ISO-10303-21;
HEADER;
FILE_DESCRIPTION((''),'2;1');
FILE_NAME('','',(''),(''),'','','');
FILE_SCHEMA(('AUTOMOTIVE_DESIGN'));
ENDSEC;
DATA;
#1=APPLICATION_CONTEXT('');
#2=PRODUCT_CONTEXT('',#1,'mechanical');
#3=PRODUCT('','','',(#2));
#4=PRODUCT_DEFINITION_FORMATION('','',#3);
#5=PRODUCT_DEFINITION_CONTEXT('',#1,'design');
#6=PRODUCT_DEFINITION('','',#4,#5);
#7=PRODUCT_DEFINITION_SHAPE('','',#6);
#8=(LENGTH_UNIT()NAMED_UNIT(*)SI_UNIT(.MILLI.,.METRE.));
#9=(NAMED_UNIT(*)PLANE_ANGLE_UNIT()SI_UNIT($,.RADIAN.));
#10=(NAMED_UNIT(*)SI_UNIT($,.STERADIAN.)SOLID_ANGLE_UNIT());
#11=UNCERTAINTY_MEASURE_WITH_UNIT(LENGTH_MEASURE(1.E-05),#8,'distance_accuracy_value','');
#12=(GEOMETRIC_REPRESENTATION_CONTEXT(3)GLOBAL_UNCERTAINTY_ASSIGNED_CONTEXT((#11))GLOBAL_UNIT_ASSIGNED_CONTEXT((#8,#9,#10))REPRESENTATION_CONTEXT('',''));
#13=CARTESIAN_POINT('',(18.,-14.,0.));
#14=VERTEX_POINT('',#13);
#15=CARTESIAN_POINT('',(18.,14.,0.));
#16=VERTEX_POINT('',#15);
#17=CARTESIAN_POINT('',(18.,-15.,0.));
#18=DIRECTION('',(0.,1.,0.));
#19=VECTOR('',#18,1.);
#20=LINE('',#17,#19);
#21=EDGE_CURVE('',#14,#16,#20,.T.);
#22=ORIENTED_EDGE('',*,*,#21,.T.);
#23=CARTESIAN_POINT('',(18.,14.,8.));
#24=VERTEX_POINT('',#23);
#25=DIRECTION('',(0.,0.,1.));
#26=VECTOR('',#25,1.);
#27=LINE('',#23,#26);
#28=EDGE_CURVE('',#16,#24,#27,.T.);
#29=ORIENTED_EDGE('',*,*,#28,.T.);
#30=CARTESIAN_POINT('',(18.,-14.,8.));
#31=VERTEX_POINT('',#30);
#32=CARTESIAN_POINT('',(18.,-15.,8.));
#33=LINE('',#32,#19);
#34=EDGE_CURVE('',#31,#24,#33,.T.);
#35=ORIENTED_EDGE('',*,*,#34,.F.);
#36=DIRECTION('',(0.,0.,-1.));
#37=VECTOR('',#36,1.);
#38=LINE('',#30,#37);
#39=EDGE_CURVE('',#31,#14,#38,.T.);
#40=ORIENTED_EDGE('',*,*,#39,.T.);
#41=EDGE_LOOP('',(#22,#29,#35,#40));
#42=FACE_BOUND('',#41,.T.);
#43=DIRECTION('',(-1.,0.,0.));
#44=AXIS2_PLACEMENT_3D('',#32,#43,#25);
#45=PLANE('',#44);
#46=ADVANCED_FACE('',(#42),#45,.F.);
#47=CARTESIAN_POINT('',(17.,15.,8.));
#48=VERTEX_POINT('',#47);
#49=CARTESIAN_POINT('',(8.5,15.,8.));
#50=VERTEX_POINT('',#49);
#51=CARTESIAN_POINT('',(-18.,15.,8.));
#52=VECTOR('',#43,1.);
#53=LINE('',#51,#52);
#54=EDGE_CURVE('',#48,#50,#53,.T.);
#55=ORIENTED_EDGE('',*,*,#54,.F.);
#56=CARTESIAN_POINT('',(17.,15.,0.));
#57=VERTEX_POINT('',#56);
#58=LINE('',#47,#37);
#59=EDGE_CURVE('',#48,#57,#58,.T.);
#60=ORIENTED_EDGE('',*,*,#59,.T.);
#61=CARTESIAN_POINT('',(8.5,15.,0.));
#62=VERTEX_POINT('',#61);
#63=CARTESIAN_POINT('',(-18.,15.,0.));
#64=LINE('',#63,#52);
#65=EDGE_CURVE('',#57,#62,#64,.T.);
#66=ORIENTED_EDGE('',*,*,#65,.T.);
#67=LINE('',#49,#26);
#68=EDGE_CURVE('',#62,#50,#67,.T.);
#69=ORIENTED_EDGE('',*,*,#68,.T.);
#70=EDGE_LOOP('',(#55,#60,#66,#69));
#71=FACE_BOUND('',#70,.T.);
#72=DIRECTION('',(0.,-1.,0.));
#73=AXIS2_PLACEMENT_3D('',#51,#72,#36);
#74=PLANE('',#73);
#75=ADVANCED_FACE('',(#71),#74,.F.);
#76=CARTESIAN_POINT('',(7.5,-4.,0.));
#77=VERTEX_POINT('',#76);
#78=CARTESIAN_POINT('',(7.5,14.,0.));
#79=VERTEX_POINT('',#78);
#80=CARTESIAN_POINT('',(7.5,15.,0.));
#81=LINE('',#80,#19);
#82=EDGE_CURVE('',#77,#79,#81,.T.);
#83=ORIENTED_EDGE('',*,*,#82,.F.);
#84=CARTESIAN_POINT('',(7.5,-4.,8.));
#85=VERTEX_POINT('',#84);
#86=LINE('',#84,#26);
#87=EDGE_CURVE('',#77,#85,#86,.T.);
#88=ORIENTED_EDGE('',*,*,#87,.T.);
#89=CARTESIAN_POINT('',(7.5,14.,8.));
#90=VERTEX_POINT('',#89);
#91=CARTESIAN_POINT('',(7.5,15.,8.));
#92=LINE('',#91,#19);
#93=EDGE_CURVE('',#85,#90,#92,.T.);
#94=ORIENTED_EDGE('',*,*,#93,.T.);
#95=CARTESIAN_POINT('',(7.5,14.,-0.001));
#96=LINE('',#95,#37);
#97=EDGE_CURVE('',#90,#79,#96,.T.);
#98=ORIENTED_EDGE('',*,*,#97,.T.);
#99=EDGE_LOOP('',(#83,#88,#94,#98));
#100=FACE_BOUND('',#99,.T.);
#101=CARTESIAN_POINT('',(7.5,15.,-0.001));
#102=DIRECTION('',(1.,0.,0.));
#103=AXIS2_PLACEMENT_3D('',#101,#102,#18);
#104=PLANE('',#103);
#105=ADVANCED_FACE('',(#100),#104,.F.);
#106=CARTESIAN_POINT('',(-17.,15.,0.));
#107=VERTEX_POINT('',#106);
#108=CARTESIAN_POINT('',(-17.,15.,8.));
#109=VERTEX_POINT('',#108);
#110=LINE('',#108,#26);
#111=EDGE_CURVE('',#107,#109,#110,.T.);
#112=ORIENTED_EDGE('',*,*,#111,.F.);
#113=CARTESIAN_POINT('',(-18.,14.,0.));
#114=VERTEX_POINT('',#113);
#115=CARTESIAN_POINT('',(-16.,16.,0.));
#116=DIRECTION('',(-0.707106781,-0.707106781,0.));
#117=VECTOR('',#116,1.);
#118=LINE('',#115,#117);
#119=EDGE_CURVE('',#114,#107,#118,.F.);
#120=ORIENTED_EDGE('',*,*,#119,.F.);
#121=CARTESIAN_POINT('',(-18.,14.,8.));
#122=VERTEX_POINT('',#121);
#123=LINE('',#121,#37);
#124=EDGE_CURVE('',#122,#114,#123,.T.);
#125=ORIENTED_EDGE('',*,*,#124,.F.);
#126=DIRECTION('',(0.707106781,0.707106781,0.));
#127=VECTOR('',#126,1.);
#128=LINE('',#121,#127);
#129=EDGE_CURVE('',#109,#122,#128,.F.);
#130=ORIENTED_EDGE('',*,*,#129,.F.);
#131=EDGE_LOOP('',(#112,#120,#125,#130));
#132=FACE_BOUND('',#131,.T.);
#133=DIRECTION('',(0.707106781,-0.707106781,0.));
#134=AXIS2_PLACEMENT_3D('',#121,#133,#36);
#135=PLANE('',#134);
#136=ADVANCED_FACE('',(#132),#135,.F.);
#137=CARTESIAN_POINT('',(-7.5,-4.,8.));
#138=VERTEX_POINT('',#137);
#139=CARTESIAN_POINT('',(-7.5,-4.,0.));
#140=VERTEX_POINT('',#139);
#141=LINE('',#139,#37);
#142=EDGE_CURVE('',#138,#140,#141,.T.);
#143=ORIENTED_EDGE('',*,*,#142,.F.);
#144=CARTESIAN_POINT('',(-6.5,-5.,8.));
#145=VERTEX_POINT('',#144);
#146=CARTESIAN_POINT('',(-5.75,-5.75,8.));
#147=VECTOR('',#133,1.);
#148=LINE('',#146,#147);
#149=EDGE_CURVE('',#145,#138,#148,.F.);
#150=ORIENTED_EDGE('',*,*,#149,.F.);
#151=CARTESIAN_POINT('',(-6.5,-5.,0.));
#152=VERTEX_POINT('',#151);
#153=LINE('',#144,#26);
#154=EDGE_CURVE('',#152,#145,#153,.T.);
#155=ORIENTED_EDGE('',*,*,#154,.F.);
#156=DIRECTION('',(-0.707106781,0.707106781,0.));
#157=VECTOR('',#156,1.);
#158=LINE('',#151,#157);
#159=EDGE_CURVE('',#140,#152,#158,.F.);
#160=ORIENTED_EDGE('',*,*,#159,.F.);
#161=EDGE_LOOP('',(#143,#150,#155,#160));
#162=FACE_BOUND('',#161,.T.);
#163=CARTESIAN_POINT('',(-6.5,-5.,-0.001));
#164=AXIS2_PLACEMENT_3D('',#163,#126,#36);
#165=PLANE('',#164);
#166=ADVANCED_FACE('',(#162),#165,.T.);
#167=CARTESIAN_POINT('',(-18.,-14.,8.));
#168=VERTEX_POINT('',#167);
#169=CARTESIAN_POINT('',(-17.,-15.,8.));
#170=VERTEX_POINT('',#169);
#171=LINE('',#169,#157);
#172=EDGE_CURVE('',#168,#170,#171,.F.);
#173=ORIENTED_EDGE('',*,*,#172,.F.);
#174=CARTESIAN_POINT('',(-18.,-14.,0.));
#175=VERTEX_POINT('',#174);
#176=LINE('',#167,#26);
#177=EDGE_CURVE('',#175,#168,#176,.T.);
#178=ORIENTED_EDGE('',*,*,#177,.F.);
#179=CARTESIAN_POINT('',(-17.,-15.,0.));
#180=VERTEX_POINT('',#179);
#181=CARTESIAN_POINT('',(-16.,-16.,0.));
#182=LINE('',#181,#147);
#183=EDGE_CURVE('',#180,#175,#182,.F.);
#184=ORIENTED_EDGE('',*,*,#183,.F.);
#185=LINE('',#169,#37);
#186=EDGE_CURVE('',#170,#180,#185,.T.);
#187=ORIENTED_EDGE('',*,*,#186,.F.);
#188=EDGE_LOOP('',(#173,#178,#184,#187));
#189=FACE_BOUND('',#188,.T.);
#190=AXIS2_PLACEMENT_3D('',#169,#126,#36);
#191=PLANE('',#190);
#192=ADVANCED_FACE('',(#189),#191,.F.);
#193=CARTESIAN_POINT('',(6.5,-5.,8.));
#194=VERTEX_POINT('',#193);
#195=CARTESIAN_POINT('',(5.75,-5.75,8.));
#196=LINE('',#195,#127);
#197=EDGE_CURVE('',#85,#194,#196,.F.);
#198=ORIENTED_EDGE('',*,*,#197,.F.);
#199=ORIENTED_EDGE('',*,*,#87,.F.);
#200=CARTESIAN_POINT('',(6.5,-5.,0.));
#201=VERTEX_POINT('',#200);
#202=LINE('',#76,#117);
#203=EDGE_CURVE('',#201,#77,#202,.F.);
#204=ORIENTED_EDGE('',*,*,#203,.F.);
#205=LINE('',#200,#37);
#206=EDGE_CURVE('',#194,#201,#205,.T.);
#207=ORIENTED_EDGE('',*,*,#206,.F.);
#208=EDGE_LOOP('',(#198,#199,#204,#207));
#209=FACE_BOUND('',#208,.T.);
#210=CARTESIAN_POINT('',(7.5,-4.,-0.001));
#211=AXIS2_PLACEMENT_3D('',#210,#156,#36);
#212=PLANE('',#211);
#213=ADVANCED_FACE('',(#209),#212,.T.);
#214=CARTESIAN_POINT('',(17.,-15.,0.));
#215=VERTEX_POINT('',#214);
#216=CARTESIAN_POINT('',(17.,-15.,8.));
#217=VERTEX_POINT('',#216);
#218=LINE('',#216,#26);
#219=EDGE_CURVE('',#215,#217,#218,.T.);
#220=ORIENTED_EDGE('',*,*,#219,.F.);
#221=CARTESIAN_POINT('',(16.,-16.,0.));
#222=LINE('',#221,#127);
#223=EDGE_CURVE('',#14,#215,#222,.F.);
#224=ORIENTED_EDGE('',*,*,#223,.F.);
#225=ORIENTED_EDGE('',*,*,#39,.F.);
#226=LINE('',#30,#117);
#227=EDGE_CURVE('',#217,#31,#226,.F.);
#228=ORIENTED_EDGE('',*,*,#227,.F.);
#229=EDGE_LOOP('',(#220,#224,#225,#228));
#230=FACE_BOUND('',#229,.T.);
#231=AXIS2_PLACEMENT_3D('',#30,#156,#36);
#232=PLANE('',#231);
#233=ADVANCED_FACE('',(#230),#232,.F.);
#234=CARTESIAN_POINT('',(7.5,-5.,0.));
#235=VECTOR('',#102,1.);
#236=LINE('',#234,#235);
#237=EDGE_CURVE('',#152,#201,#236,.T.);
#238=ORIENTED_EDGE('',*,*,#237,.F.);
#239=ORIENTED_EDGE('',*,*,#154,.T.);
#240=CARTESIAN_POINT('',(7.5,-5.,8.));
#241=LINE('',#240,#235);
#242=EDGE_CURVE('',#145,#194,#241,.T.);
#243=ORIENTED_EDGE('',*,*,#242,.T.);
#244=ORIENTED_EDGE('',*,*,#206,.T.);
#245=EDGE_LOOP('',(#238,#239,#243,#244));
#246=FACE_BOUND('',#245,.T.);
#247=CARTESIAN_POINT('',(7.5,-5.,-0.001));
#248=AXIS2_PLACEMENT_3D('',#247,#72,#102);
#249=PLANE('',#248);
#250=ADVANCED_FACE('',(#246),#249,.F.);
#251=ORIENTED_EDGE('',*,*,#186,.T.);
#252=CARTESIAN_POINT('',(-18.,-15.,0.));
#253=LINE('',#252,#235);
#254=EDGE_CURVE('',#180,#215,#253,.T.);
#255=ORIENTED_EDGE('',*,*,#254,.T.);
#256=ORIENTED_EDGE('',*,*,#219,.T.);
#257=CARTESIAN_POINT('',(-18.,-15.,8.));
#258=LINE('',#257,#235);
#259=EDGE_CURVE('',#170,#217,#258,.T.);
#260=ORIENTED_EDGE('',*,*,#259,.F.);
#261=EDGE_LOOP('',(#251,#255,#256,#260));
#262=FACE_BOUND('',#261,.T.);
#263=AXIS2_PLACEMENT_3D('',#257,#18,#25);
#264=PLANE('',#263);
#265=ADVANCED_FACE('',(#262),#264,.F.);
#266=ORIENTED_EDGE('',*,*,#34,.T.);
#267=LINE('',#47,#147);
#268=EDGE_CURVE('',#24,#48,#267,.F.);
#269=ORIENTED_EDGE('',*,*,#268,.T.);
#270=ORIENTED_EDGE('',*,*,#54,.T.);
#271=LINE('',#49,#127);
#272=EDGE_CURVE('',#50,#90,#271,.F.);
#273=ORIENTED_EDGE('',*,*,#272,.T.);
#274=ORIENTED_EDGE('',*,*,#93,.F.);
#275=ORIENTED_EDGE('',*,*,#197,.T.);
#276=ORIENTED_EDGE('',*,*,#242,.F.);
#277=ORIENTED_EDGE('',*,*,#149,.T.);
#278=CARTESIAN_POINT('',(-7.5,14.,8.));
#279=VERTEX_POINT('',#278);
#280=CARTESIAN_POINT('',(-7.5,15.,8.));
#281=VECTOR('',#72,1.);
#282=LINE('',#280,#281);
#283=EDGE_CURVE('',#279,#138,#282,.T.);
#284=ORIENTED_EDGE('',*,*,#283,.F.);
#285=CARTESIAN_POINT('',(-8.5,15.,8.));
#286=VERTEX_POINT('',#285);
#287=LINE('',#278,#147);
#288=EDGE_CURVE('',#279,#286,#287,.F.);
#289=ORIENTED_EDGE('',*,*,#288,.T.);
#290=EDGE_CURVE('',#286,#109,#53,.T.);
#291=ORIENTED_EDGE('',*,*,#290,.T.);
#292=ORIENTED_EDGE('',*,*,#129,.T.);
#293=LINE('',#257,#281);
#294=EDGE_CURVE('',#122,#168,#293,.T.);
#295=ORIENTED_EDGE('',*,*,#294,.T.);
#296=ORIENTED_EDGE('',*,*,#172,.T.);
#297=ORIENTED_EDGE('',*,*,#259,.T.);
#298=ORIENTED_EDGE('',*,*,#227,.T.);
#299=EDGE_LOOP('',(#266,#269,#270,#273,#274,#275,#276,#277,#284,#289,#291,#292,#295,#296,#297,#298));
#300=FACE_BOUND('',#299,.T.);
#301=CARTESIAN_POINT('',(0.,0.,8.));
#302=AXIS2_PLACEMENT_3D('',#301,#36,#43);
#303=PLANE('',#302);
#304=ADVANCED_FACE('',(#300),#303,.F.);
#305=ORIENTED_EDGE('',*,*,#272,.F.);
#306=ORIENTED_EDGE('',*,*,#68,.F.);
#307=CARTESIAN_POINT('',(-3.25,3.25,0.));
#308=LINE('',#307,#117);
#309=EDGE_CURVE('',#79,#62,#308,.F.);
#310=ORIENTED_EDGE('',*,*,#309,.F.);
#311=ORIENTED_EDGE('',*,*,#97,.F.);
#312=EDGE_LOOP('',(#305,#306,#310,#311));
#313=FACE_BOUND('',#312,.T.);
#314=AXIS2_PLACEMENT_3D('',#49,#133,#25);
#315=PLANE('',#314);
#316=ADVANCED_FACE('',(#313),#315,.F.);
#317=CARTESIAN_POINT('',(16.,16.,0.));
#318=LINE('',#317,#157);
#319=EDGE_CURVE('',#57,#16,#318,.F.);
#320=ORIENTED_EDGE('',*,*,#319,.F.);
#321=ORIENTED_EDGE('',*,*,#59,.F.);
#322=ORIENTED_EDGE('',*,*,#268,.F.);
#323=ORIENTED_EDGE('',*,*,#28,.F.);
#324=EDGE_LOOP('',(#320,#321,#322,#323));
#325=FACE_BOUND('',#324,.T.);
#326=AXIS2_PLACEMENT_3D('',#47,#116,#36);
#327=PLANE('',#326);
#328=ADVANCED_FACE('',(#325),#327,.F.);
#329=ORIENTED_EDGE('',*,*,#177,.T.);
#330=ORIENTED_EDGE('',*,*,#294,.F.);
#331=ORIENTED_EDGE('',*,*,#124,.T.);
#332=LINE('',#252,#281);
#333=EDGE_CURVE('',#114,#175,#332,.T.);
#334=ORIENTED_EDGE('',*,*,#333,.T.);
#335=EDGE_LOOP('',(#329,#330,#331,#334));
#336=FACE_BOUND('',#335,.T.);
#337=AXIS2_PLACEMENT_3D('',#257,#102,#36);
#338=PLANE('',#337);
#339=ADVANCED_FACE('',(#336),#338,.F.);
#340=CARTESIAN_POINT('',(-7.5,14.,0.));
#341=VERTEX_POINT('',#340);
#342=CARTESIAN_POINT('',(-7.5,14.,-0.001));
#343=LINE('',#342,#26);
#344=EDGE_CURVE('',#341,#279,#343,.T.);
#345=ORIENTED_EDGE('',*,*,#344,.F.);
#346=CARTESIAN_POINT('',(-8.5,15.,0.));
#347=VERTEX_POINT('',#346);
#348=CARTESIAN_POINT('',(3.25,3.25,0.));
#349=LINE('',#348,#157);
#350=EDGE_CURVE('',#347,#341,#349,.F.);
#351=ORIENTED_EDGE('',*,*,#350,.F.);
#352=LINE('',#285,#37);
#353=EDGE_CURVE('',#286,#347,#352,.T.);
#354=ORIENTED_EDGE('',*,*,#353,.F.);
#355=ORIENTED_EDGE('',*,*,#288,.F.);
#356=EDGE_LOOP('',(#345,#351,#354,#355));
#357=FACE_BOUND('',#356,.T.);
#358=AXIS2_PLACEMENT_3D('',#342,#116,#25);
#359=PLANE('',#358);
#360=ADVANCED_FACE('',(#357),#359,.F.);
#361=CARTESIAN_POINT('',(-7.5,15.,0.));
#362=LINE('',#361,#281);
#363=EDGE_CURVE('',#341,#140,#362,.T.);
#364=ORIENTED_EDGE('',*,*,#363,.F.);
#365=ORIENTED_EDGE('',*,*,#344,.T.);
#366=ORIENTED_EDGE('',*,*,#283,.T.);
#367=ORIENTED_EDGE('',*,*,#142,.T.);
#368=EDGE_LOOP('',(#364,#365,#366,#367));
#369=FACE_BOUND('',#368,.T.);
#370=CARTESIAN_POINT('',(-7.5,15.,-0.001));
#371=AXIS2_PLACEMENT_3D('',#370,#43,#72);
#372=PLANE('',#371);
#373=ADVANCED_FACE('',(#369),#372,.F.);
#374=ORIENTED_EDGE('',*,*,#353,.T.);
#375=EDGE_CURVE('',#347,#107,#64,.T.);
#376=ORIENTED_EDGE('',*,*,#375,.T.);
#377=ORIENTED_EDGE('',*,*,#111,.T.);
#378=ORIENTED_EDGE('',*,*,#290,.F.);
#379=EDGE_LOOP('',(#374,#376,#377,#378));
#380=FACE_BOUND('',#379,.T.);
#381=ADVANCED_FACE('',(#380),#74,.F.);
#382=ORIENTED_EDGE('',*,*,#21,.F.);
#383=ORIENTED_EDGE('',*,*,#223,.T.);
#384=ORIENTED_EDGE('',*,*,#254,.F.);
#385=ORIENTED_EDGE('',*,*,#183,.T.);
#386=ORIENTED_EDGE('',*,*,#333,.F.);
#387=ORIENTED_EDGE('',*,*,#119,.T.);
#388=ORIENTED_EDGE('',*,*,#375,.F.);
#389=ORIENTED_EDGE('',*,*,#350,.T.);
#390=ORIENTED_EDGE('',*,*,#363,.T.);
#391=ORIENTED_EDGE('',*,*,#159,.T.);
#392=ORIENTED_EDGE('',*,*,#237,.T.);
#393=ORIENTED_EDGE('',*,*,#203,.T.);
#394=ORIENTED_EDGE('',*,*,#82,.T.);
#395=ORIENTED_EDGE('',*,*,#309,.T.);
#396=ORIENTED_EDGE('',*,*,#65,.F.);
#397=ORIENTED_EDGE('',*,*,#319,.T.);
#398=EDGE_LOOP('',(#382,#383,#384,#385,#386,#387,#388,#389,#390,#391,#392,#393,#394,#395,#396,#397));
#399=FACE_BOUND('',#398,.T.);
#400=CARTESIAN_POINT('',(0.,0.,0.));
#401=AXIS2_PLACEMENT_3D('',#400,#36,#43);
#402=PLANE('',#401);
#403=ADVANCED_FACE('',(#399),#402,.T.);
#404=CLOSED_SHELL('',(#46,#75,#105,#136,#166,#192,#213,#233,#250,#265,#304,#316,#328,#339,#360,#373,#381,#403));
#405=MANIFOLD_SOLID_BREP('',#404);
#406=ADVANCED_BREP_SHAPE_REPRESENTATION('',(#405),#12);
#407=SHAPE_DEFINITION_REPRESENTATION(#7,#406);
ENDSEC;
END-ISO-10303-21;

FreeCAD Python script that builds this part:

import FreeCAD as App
import Part
import Sketcher
from FreeCAD import Vector
Q = App.Units.Quantity


def edges_at(feature, points):
    """Names of the edges that pass closest to the given points."""
    edges = feature.Shape.Edges
    near = lambda p: min(range(len(edges)), key=lambda i: edges[i].distToShape(Part.Vertex(*p))[0])
    return sorted({f"Edge{near(p) + 1}" for p in points})


def add_polygon(sketch, points):
    """Adds a closed chain of lines whose ends are joined by coincident constraints."""
    first, n = sketch.GeometryCount, len(points)
    for a, b in zip(points, points[1:] + points[:1]):
        sketch.addGeometry(Part.LineSegment(App.Vector(*a, 0), App.Vector(*b, 0)), False)
    for i in range(n):
        sketch.addConstraint(Sketcher.Constraint("Coincident", first + i, 2, first + (i + 1) % n, 1))

doc = App.newDocument("Part")
body = doc.addObject("PartDesign::Body", "Body")

sketch1 = body.newObject("Sketcher::SketchObject", "Sketch")
sketch1.AttachmentSupport = (doc.getObject("XY_Plane"), [""])
sketch1.MapMode = "FlatFace"
add_polygon(sketch1, [(-18, 15), (-18, -15), (18, -15), (18, 15)])
sketch1.addConstraint([
    Sketcher.Constraint("Vertical", 0),
    Sketcher.Constraint("Horizontal", 1),
    Sketcher.Constraint("Vertical", 2),
    Sketcher.Constraint("Horizontal", 3),
    Sketcher.Constraint("Symmetric", 0, 2, 2, 2, -1, 1),
    Sketcher.Constraint("DistanceX", 1, 1, 1, 2, Q("36 mm")),
    Sketcher.Constraint("DistanceY", 0, 2, 0, 1, Q("30 mm")),
])
pad1 = body.newObject("PartDesign::Pad", "Pad")
pad1.Profile = sketch1
pad1.Length = 8

sketch2 = body.newObject("Sketcher::SketchObject", "Sketch001")
sketch2.AttachmentSupport = (doc.getObject("XY_Plane"), [""])
sketch2.MapMode = "FlatFace"
sketch2.AttachmentOffset = App.Placement(Vector(0, 0, 8), App.Rotation())
add_polygon(sketch2, [(-7.5, 15), (-7.5, -5), (7.5, -5), (7.5, 15)])
sketch2.addConstraint([
    Sketcher.Constraint("Vertical", 0),
    Sketcher.Constraint("Horizontal", 1),
    Sketcher.Constraint("Vertical", 2),
    Sketcher.Constraint("Horizontal", 3),
    Sketcher.Constraint("DistanceX", 1, 1, 1, 2, Q("15 mm")),
    Sketcher.Constraint("DistanceY", 0, 2, 0, 1, Q("20 mm")),
    Sketcher.Constraint("DistanceY", 0, 2, -1, 1, Q("5 mm")),
    Sketcher.Constraint("DistanceX", 0, 2, -1, 1, Q("7.5 mm")),
])
pocket1 = body.newObject("PartDesign::Pocket", "Pocket")
pocket1.Profile = sketch2
pocket1.Type = "UpToFirst"
doc.recompute()

chamfer = body.newObject("PartDesign::Chamfer", "Chamfer")
chamfer.Base = (pocket1, edges_at(pocket1, [
    (18, -15, 4),
    (-18, -15, 4),
    (-18, 15, 4),
    (18, 15, 4),
]))
chamfer.Size = 1
doc.recompute()

chamfer2 = body.newObject("PartDesign::Chamfer", "Chamfer001")
chamfer2.Base = (chamfer, edges_at(chamfer, [(-7.5, 15, 4), (7.5, 15, 4)]))
chamfer2.Size = 1
doc.recompute()

chamfer3 = body.newObject("PartDesign::Chamfer", "Chamfer002")
chamfer3.Base = (chamfer2, edges_at(chamfer2, [(7.5, -5, 4), (-7.5, -5, 4)]))
chamfer3.Size = 1

doc.recompute()
